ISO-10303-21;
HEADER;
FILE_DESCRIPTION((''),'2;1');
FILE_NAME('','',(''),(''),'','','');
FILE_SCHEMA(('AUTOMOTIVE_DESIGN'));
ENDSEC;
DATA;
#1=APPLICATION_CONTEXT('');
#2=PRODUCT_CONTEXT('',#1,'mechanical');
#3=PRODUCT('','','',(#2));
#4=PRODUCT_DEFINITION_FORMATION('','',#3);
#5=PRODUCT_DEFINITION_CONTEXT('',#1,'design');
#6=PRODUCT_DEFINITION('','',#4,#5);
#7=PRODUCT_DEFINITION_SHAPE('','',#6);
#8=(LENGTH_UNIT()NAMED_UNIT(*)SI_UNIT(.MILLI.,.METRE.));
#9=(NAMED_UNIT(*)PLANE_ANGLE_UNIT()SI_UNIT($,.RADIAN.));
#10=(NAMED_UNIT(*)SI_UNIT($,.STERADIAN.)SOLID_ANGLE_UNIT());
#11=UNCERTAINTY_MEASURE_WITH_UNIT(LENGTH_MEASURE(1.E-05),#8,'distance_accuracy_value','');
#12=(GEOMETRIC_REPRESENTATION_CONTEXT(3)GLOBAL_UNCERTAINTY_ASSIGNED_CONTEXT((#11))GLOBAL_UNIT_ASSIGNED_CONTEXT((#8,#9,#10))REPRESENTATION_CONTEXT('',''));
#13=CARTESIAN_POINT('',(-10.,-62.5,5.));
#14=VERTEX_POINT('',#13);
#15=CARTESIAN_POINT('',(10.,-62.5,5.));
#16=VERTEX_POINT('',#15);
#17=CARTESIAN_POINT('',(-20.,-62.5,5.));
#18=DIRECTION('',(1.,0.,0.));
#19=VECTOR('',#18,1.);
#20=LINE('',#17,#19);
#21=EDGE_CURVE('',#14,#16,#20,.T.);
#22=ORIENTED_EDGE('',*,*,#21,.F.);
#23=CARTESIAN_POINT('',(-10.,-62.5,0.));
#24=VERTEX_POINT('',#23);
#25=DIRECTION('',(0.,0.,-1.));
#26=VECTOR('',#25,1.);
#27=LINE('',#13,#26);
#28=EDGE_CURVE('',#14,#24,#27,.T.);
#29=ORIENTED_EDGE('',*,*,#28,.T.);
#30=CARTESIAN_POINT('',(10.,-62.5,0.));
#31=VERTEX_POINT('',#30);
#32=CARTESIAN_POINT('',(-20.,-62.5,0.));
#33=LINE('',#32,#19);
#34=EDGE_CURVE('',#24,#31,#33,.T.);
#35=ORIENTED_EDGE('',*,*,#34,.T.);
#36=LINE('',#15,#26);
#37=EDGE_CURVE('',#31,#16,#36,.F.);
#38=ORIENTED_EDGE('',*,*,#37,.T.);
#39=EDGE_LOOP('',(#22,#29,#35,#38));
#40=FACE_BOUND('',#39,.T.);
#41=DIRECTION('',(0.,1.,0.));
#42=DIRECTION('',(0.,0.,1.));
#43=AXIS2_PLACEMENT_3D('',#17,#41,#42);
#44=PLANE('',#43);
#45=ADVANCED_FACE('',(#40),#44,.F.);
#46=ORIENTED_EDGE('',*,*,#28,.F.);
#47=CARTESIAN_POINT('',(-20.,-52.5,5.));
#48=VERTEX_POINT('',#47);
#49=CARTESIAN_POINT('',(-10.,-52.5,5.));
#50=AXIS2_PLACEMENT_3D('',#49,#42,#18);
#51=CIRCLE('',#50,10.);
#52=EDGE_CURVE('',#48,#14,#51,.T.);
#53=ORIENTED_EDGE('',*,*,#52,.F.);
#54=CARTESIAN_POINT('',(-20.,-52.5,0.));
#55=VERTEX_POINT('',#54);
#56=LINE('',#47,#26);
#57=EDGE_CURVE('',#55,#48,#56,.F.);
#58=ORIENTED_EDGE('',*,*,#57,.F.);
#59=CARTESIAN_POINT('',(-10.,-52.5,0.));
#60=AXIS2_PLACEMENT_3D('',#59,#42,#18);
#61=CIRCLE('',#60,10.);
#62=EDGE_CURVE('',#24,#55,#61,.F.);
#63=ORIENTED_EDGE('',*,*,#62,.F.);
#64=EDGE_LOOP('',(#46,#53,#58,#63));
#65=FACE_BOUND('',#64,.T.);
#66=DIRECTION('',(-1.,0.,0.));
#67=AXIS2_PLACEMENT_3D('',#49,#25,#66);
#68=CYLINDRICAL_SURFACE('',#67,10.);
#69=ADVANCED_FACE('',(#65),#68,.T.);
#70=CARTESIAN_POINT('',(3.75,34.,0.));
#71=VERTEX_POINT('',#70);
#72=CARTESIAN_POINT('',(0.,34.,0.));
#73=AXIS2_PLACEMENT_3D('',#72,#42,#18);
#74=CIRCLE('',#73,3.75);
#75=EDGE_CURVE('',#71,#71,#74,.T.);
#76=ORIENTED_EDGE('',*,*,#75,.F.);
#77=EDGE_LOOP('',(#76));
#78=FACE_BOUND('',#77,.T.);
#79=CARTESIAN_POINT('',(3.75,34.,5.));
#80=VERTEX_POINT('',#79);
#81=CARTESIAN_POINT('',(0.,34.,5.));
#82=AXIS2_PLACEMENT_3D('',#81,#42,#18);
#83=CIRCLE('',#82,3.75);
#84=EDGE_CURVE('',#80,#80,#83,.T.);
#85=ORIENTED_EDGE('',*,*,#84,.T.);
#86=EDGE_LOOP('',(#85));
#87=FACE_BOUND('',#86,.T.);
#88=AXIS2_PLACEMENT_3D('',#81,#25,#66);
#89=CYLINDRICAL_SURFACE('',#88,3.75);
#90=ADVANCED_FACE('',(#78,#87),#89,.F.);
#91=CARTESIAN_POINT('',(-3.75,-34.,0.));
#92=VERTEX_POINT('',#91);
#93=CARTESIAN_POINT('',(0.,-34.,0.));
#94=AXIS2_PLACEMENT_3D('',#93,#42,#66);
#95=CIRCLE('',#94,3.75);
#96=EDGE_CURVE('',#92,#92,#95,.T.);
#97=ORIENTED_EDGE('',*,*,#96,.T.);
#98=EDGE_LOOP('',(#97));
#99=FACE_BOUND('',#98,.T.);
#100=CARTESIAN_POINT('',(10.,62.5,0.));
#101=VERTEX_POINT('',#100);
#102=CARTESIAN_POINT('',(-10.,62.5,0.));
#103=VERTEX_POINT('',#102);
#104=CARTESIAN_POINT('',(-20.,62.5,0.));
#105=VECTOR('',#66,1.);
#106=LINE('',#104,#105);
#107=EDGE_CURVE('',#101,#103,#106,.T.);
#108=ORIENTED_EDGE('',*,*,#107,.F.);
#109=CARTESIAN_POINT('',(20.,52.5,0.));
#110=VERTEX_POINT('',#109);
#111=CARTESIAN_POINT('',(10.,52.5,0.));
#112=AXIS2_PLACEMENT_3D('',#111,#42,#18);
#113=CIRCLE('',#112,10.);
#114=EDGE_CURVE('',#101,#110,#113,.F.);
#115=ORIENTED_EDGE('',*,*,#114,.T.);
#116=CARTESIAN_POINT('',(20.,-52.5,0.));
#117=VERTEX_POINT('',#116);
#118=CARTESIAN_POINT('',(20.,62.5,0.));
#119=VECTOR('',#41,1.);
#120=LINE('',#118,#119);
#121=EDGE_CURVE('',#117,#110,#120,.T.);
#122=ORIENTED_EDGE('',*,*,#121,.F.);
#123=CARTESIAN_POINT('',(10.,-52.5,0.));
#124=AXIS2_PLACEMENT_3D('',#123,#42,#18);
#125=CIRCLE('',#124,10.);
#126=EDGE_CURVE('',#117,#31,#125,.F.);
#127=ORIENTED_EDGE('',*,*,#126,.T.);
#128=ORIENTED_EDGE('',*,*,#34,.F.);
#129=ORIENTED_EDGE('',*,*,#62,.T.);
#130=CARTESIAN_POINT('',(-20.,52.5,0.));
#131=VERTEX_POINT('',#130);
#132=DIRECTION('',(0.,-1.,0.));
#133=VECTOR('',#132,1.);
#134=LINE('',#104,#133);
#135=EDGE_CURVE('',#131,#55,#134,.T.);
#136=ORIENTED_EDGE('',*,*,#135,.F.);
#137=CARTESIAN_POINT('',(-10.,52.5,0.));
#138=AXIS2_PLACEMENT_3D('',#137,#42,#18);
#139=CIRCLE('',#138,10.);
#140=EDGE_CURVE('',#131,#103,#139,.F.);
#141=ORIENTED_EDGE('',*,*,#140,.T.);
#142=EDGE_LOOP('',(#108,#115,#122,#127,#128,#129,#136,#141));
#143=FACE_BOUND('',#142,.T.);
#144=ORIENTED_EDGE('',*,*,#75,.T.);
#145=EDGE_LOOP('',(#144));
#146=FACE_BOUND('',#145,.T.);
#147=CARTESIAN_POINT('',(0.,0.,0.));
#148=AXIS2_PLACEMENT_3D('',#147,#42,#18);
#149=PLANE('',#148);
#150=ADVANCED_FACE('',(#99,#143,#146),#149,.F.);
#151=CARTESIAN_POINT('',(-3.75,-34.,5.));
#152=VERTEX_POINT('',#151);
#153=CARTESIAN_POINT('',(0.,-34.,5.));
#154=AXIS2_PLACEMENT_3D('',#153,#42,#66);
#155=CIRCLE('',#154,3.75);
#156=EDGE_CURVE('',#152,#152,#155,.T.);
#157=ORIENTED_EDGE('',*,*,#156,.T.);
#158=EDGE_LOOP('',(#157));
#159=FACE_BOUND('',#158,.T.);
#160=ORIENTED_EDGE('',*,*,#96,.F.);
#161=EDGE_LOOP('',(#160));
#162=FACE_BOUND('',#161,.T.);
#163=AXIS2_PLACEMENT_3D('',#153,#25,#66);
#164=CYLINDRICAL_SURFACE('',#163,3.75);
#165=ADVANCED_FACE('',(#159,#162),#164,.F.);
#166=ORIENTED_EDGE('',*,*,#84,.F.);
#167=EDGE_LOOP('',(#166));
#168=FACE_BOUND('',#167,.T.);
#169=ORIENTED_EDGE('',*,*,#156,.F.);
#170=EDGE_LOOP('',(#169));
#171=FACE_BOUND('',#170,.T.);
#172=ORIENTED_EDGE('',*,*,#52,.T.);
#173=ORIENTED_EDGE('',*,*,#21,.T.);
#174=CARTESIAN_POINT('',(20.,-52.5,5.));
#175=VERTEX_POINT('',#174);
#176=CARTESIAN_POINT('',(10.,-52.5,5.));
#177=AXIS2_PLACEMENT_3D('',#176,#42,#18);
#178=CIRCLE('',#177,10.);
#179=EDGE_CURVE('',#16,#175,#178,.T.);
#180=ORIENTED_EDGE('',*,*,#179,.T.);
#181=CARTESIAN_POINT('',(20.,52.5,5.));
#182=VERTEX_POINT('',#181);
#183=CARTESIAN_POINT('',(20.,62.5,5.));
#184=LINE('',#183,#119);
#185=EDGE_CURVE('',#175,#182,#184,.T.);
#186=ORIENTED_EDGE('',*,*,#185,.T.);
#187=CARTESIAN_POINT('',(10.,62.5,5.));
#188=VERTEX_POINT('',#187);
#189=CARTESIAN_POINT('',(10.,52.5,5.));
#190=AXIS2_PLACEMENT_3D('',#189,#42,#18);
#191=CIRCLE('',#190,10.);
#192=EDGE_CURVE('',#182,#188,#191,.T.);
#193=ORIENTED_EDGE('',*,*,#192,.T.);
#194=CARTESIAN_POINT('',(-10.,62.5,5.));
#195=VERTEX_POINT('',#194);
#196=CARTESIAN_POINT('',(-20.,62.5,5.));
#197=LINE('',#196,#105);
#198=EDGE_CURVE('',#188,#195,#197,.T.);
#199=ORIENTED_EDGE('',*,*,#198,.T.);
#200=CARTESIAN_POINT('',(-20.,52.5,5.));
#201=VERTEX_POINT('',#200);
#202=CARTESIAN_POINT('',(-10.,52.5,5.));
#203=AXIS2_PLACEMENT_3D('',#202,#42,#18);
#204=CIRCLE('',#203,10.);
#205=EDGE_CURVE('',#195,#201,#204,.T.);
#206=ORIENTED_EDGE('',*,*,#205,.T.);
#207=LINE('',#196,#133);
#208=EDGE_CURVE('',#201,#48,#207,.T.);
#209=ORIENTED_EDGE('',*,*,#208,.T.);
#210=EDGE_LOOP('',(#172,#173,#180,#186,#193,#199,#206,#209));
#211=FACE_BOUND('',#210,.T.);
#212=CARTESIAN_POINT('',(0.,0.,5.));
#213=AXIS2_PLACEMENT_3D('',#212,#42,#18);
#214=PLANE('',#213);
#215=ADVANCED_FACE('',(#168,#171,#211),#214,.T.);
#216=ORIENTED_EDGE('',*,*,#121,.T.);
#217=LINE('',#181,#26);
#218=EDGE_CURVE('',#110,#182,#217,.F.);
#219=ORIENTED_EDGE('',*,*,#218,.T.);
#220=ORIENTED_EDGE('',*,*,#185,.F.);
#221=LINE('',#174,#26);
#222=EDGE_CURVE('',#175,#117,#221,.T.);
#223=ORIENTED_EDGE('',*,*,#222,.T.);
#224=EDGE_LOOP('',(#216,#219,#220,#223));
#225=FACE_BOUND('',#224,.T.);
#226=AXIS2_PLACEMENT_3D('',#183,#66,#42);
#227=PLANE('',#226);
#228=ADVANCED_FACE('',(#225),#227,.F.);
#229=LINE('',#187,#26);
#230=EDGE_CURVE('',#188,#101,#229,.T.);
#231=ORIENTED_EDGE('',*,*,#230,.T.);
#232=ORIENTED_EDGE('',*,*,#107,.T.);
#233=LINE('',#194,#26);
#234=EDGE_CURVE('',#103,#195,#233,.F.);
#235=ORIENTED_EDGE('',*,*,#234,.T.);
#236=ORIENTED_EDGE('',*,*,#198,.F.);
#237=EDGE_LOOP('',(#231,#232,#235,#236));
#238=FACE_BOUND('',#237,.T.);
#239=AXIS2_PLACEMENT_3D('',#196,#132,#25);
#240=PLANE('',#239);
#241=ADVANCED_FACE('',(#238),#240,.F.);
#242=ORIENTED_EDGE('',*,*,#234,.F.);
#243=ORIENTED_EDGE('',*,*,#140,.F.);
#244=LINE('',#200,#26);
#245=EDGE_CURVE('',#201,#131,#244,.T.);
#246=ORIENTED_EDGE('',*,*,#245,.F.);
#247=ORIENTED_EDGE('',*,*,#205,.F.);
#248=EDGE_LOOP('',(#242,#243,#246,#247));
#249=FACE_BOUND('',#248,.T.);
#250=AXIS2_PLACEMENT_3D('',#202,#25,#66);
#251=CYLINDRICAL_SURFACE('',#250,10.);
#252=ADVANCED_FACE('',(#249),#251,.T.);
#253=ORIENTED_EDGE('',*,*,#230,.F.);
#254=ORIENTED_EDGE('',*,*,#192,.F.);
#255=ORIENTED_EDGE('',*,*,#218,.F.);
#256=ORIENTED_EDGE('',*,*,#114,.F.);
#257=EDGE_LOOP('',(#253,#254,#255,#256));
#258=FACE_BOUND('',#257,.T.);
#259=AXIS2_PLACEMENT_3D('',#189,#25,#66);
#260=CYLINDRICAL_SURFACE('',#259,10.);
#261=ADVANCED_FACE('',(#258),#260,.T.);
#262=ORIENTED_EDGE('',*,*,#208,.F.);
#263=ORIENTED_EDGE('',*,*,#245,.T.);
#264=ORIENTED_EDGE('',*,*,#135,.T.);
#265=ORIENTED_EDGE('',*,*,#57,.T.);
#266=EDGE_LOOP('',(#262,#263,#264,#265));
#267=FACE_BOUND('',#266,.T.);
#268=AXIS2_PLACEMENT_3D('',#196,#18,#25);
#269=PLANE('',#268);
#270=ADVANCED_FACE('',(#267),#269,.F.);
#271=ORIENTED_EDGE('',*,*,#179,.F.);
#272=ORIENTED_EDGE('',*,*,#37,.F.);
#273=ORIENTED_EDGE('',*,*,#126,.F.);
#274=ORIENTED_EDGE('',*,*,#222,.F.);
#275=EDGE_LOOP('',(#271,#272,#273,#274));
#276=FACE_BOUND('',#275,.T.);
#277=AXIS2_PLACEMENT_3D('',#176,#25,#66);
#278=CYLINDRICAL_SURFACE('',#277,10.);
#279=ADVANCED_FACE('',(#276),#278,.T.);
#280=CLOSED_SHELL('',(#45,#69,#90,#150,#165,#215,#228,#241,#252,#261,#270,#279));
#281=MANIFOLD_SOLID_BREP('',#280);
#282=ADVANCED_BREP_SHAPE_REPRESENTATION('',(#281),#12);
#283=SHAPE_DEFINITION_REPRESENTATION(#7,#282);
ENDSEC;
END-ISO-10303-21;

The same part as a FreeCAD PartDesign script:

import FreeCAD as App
import Part
import Sketcher
Q = App.Units.Quantity


def edges_at(feature, points):
    """Names of the edges that pass closest to the given points."""
    edges = feature.Shape.Edges
    near = lambda p: min(range(len(edges)), key=lambda i: edges[i].distToShape(Part.Vertex(*p))[0])
    return sorted({f"Edge{near(p) + 1}" for p in points})


def add_polygon(sketch, points):
    """Adds a closed chain of lines whose ends are joined by coincident constraints."""
    first, n = sketch.GeometryCount, len(points)
    for a, b in zip(points, points[1:] + points[:1]):
        sketch.addGeometry(Part.LineSegment(App.Vector(*a, 0), App.Vector(*b, 0)), False)
    for i in range(n):
        sketch.addConstraint(Sketcher.Constraint("Coincident", first + i, 2, first + (i + 1) % n, 1))

doc = App.newDocument("Part")
body = doc.addObject("PartDesign::Body", "Body")

# Sketch on XY plane
sketch1 = body.newObject("Sketcher::SketchObject", "Sketch")
sketch1.AttachmentSupport = (doc.getObject("XY_Plane"), [""])
sketch1.MapMode = "FlatFace"
add_polygon(sketch1, [(-20, 62.5), (-20, -62.5), (20, -62.5), (20, 62.5)])  # lines 0-3
sketch1.addGeometry(Part.Circle(App.Vector(0, -34, 0), App.Vector(0, 0, 1), 3.75), False)  # 4
sketch1.addGeometry(Part.Circle(App.Vector(0, 34, 0), App.Vector(0, 0, 1), 3.75), False)  # 5
sketch1.addConstraint([
    Sketcher.Constraint("Vertical", 0),
    Sketcher.Constraint("Horizontal", 1),
    Sketcher.Constraint("Vertical", 2),
    Sketcher.Constraint("Horizontal", 3),
    Sketcher.Constraint("Equal", 4, 5),
    Sketcher.Constraint("Symmetric", 4, 3, 5, 3, -1, 1),
    Sketcher.Constraint("Symmetric", 0, 2, 2, 2, -1, 1),
    Sketcher.Constraint("PointOnObject", 4, 3, -2),
    Sketcher.Constraint("Diameter", 4, Q("7.5 mm")),
    Sketcher.Constraint("DistanceX", 1, 1, 1, 2, Q("40 mm")),
    Sketcher.Constraint("DistanceY", 0, 2, 0, 1, Q("125 mm")),
    Sketcher.Constraint("DistanceY", 4, 3, -1, 1, Q("34 mm")),
])
pad1 = body.newObject("PartDesign::Pad", "Pad")
pad1.Profile = sketch1
pad1.Length = 5
doc.recompute()

fillet = body.newObject("PartDesign::Fillet", "Fillet")
fillet.Base = (pad1, edges_at(pad1, [
    (-20, 62.5, 2.5),
    (20, 62.5, 2.5),
    (20, -62.5, 2.5),
    (-20, -62.5, 2.5),
]))
fillet.Radius = 10

doc.recompute()
